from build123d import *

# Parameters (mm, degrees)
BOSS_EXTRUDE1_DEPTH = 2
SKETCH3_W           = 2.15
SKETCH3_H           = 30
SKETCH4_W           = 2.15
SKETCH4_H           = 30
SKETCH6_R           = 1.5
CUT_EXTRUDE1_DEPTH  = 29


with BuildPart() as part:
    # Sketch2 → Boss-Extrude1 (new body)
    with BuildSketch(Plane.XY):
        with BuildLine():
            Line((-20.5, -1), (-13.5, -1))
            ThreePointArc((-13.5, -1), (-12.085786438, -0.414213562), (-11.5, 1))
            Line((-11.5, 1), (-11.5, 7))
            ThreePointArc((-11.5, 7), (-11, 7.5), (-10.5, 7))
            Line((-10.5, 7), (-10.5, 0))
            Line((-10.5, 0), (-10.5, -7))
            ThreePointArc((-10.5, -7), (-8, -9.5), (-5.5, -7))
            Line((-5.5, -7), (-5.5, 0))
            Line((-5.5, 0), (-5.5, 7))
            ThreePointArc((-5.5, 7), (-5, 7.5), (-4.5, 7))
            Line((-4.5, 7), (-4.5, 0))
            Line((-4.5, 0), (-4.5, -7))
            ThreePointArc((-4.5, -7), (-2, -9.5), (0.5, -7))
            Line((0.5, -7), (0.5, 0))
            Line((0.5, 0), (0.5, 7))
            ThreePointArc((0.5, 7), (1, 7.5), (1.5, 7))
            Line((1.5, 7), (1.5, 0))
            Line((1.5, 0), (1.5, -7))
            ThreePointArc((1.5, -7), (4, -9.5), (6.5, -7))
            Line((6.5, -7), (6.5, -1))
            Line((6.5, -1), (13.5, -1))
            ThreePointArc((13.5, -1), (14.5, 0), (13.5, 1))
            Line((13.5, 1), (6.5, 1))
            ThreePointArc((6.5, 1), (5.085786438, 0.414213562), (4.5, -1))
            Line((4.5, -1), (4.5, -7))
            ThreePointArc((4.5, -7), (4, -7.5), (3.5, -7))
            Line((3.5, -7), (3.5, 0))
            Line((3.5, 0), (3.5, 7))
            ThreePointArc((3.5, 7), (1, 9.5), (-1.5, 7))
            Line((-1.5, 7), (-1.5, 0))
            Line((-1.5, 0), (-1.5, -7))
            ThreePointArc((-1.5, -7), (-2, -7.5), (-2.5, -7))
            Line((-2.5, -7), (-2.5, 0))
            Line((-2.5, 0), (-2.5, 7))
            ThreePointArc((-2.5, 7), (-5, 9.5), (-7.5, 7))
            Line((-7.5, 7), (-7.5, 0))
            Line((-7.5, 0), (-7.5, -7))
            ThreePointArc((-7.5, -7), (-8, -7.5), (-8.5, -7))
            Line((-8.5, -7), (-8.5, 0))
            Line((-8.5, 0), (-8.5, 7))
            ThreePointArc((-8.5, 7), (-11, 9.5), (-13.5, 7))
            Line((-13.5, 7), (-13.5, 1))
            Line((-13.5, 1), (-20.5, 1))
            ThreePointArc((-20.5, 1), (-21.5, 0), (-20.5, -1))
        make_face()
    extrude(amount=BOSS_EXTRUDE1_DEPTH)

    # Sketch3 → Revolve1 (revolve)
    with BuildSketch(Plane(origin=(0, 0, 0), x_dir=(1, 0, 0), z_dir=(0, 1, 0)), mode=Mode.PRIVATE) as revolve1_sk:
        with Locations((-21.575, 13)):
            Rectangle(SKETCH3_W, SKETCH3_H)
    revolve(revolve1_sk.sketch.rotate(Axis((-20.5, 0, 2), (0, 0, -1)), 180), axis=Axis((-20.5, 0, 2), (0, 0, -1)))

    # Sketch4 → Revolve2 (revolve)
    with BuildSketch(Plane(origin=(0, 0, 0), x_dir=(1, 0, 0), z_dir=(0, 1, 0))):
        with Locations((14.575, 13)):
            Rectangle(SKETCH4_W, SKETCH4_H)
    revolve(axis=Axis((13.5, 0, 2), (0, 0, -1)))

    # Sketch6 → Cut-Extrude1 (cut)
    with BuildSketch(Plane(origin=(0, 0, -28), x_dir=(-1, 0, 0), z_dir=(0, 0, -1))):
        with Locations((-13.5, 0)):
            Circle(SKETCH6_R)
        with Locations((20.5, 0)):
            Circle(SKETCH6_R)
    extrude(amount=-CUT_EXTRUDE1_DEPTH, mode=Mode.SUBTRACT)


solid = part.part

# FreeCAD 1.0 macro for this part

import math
import FreeCAD as App
import Part
import Sketcher

V = App.Vector
Q = App.Units.Quantity


def add_polygon(sketch, points):
    """Adds a closed chain of lines whose ends are joined by coincident constraints."""
    first, n = sketch.GeometryCount, len(points)
    for a, b in zip(points, points[1:] + points[:1]):
        sketch.addGeometry(Part.LineSegment(App.Vector(*a, 0), App.Vector(*b, 0)), False)
    for i in range(n):
        sketch.addConstraint(Sketcher.Constraint("Coincident", first + i, 2, first + (i + 1) % n, 1))

doc = App.newDocument("Part")
body = doc.addObject("PartDesign::Body", "Body")

sketch1 = body.newObject("Sketcher::SketchObject", "Sketch")
sketch1.AttachmentSupport = (doc.getObject("XY_Plane"), [""])
sketch1.MapMode = "FlatFace"
sketch1.addGeometry(Part.LineSegment(V(-20.5, -1, 0), V(-13.5, -1, 0)), False)
sketch1.addGeometry(Part.ArcOfCircle(Part.Circle(V(-13.5, 1, 0), V(0, 0, 1), 2), math.radians(-90), math.radians(0)), False)
sketch1.addGeometry(Part.LineSegment(V(-11.5, 1, 0), V(-11.5, 7, 0)), False)
sketch1.addGeometry(Part.ArcOfCircle(Part.Circle(V(-11, 7, 0), V(0, 0, 1), 0.5), math.radians(0), math.radians(180)), False)
sketch1.addGeometry(Part.LineSegment(V(-10.5, 7, 0), V(-10.5, -7, 0)), False)
sketch1.addGeometry(Part.ArcOfCircle(Part.Circle(V(-8, -7, 0), V(0, 0, 1), 2.5), math.radians(180), math.radians(360)), False)
sketch1.addGeometry(Part.LineSegment(V(-5.5, -7, 0), V(-5.5, 7, 0)), False)
sketch1.addGeometry(Part.ArcOfCircle(Part.Circle(V(-5, 7, 0), V(0, 0, 1), 0.5), math.radians(0), math.radians(180)), False)
sketch1.addGeometry(Part.LineSegment(V(-4.5, 7, 0), V(-4.5, -7, 0)), False)
sketch1.addGeometry(Part.ArcOfCircle(Part.Circle(V(-2, -7, 0), V(0, 0, 1), 2.5), math.radians(180), math.radians(360)), False)
sketch1.addGeometry(Part.LineSegment(V(0.5, -7, 0), V(0.5, 7, 0)), False)
sketch1.addGeometry(Part.ArcOfCircle(Part.Circle(V(1, 7, 0), V(0, 0, 1), 0.5), math.radians(0), math.radians(180)), False)
sketch1.addGeometry(Part.LineSegment(V(1.5, 7, 0), V(1.5, -7, 0)), False)
sketch1.addGeometry(Part.ArcOfCircle(Part.Circle(V(4, -7, 0), V(0, 0, 1), 2.5), math.radians(180), math.radians(360)), False)
sketch1.addGeometry(Part.LineSegment(V(6.5, -7, 0), V(6.5, -1, 0)), False)
sketch1.addGeometry(Part.LineSegment(V(6.5, -1, 0), V(13.5, -1, 0)), False)
sketch1.addGeometry(Part.ArcOfCircle(Part.Circle(V(13.5, 0, 0), V(0, 0, 1), 1), math.radians(-90), math.radians(90)), False)
sketch1.addGeometry(Part.LineSegment(V(13.5, 1, 0), V(6.5, 1, 0)), False)
sketch1.addGeometry(Part.ArcOfCircle(Part.Circle(V(6.5, -1, 0), V(0, 0, 1), 2), math.radians(90), math.radians(180)), False)
sketch1.addGeometry(Part.LineSegment(V(4.5, -1, 0), V(4.5, -7, 0)), False)
sketch1.addGeometry(Part.ArcOfCircle(Part.Circle(V(4, -7, 0), V(0, 0, 1), 0.5), math.radians(180), math.radians(360)), False)
sketch1.addGeometry(Part.LineSegment(V(3.5, -7, 0), V(3.5, 7, 0)), False)
sketch1.addGeometry(Part.ArcOfCircle(Part.Circle(V(1, 7, 0), V(0, 0, 1), 2.5), math.radians(0), math.radians(180)), False)
sketch1.addGeometry(Part.LineSegment(V(-1.5, 7, 0), V(-1.5, -7, 0)), False)
sketch1.addGeometry(Part.ArcOfCircle(Part.Circle(V(-2, -7, 0), V(0, 0, 1), 0.5), math.radians(180), math.radians(360)), False)
sketch1.addGeometry(Part.LineSegment(V(-2.5, -7, 0), V(-2.5, 7, 0)), False)
sketch1.addGeometry(Part.ArcOfCircle(Part.Circle(V(-5, 7, 0), V(0, 0, 1), 2.5), math.radians(0), math.radians(180)), False)
sketch1.addGeometry(Part.LineSegment(V(-7.5, 7, 0), V(-7.5, -7, 0)), False)
sketch1.addGeometry(Part.ArcOfCircle(Part.Circle(V(-8, -7, 0), V(0, 0, 1), 0.5), math.radians(180), math.radians(360)), False)
sketch1.addGeometry(Part.LineSegment(V(-8.5, -7, 0), V(-8.5, 7, 0)), False)
sketch1.addGeometry(Part.ArcOfCircle(Part.Circle(V(-11, 7, 0), V(0, 0, 1), 2.5), math.radians(0), math.radians(180)), False)
sketch1.addGeometry(Part.LineSegment(V(-13.5, 7, 0), V(-13.5, 1, 0)), False)
sketch1.addGeometry(Part.LineSegment(V(-13.5, 1, 0), V(-20.5, 1, 0)), False)
sketch1.addGeometry(Part.ArcOfCircle(Part.Circle(V(-20.5, 0, 0), V(0, 0, 1), 1), math.radians(90), math.radians(270)), False)
sketch1.addConstraint(Sketcher.Constraint("Tangent", 0, 2, 1, 1))
sketch1.addConstraint(Sketcher.Constraint("Tangent", 1, 2, 2, 1))
sketch1.addConstraint(Sketcher.Constraint("Tangent", 2, 2, 3, 2))
sketch1.addConstraint(Sketcher.Constraint("Tangent", 3, 1, 4, 1))
sketch1.addConstraint(Sketcher.Constraint("Tangent", 4, 2, 5, 1))
sketch1.addConstraint(Sketcher.Constraint("Tangent", 5, 2, 6, 1))
sketch1.addConstraint(Sketcher.Constraint("Tangent", 6, 2, 7, 2))
sketch1.addConstraint(Sketcher.Constraint("Tangent", 7, 1, 8, 1))
sketch1.addConstraint(Sketcher.Constraint("Tangent", 8, 2, 9, 1))
sketch1.addConstraint(Sketcher.Constraint("Tangent", 9, 2, 10, 1))
sketch1.addConstraint(Sketcher.Constraint("Tangent", 10, 2, 11, 2))
sketch1.addConstraint(Sketcher.Constraint("Tangent", 11, 1, 12, 1))
sketch1.addConstraint(Sketcher.Constraint("Tangent", 12, 2, 13, 1))
sketch1.addConstraint(Sketcher.Constraint("Tangent", 13, 2, 14, 1))
sketch1.addConstraint(Sketcher.Constraint("Coincident", 14, 2, 15, 1))
sketch1.addConstraint(Sketcher.Constraint("Tangent", 15, 2, 16, 1))
sketch1.addConstraint(Sketcher.Constraint("Tangent", 16, 2, 17, 1))
sketch1.addConstraint(Sketcher.Constraint("Tangent", 17, 2, 18, 1))
sketch1.addConstraint(Sketcher.Constraint("Tangent", 18, 2, 19, 1))
sketch1.addConstraint(Sketcher.Constraint("Tangent", 19, 2, 20, 2))
sketch1.addConstraint(Sketcher.Constraint("Tangent", 20, 1, 21, 1))
sketch1.addConstraint(Sketcher.Constraint("Tangent", 21, 2, 22, 1))
sketch1.addConstraint(Sketcher.Constraint("Tangent", 22, 2, 23, 1))
sketch1.addConstraint(Sketcher.Constraint("Tangent", 23, 2, 24, 2))
sketch1.addConstraint(Sketcher.Constraint("Tangent", 24, 1, 25, 1))
sketch1.addConstraint(Sketcher.Constraint("Tangent", 25, 2, 26, 1))
sketch1.addConstraint(Sketcher.Constraint("Tangent", 26, 2, 27, 1))
sketch1.addConstraint(Sketcher.Constraint("Tangent", 27, 2, 28, 2))
sketch1.addConstraint(Sketcher.Constraint("Tangent", 28, 1, 29, 1))
sketch1.addConstraint(Sketcher.Constraint("Tangent", 29, 2, 30, 1))
sketch1.addConstraint(Sketcher.Constraint("Tangent", 30, 2, 31, 1))
sketch1.addConstraint(Sketcher.Constraint("Coincident", 31, 2, 32, 1))
sketch1.addConstraint(Sketcher.Constraint("Tangent", 32, 2, 33, 1))
sketch1.addConstraint(Sketcher.Constraint("Tangent", 33, 2, 0, 1))
sketch1.addConstraint(Sketcher.Constraint("Horizontal", 0))
sketch1.addConstraint(Sketcher.Constraint("Vertical", 2))
sketch1.addConstraint(Sketcher.Constraint("Vertical", 4))
sketch1.addConstraint(Sketcher.Constraint("Vertical", 6))
sketch1.addConstraint(Sketcher.Constraint("Vertical", 8))
sketch1.addConstraint(Sketcher.Constraint("Vertical", 10))
sketch1.addConstraint(Sketcher.Constraint("Vertical", 12))
sketch1.addConstraint(Sketcher.Constraint("Vertical", 14))
sketch1.addConstraint(Sketcher.Constraint("Horizontal", 15))
sketch1.addConstraint(Sketcher.Constraint("Horizontal", 17))
sketch1.addConstraint(Sketcher.Constraint("Vertical", 19))
sketch1.addConstraint(Sketcher.Constraint("Vertical", 21))
sketch1.addConstraint(Sketcher.Constraint("Vertical", 23))
sketch1.addConstraint(Sketcher.Constraint("Vertical", 25))
sketch1.addConstraint(Sketcher.Constraint("Vertical", 27))
sketch1.addConstraint(Sketcher.Constraint("Vertical", 29))
sketch1.addConstraint(Sketcher.Constraint("Vertical", 31))
sketch1.addConstraint(Sketcher.Constraint("Horizontal", 32))
sketch1.addConstraint(Sketcher.Constraint("Coincident", 20, 3, 13, 3))
sketch1.addConstraint(Sketcher.Constraint("Coincident", 22, 3, 11, 3))
sketch1.addConstraint(Sketcher.Constraint("Coincident", 24, 3, 9, 3))
sketch1.addConstraint(Sketcher.Constraint("Coincident", 26, 3, 7, 3))
sketch1.addConstraint(Sketcher.Constraint("Coincident", 28, 3, 5, 3))
sketch1.addConstraint(Sketcher.Constraint("Coincident", 30, 3, 3, 3))
sketch1.addConstraint(Sketcher.Constraint("Coincident", 14, 2, 18, 3))
sketch1.addConstraint(Sketcher.Constraint("Coincident", 31, 2, 1, 3))
sketch1.addConstraint(Sketcher.Constraint("Equal", 3, 7))
sketch1.addConstraint(Sketcher.Constraint("Equal", 5, 9))
sketch1.addConstraint(Sketcher.Constraint("Equal", 7, 11))
sketch1.addConstraint(Sketcher.Constraint("Equal", 9, 13))
sketch1.addConstraint(Sketcher.Constraint("Equal", 11, 20))
sketch1.addConstraint(Sketcher.Constraint("Symmetric", 0, 2, 16, 2, -1, 1))
sketch1.addConstraint(Sketcher.Constraint("Symmetric", 7, 1, 19, 2, -1, 1))
sketch1.addConstraint(Sketcher.Constraint("PointOnObject", 16, 3, -1))
sketch1.addConstraint(Sketcher.Constraint("Horizontal", 3, 3, 7, 3))
sketch1.addConstraint(Sketcher.Constraint("Horizontal", 5, 3, 9, 3))
sketch1.addConstraint(Sketcher.Constraint("Horizontal", 7, 3, 11, 3))
sketch1.addConstraint(Sketcher.Constraint("Horizontal", 9, 3, 13, 3))
sketch1.addConstraint(Sketcher.Constraint("Equal", 0, 15))
sketch1.addConstraint(Sketcher.Constraint("Radius", 1, Q("2 mm")))
sketch1.addConstraint(Sketcher.Constraint("Radius", 3, Q("0.5 mm")))
sketch1.addConstraint(Sketcher.Constraint("DistanceY", 2, 1, 2, 2, Q("6 mm")))
pad1 = body.newObject("PartDesign::Pad", "Pad")
pad1.Profile = sketch1
pad1.Length = 2

sketch2 = body.newObject("Sketcher::SketchObject", "Sketch001")
sketch2.AttachmentSupport = (doc.getObject("XZ_Plane"), [""])
sketch2.MapMode = "FlatFace"
add_polygon(sketch2, [(-22.6, -28), (-22.6, 2), (-20.5, 2), (-20.5, -28)])
sketch2.addGeometry(Part.LineSegment(V(-20.5, 2, 0), V(-20.5, -28, 0)), True)
sketch2.addConstraint(Sketcher.Constraint("Vertical", 0))
sketch2.addConstraint(Sketcher.Constraint("Horizontal", 1))
sketch2.addConstraint(Sketcher.Constraint("Vertical", 2))
sketch2.addConstraint(Sketcher.Constraint("Horizontal", 3))
sketch2.addConstraint(Sketcher.Constraint("Vertical", 4))
sketch2.addConstraint(Sketcher.Constraint("Coincident", 4, 1, 1, 2))
sketch2.addConstraint(Sketcher.Constraint("Horizontal", 3, 2, 4, 2))
sketch2.addConstraint(Sketcher.Constraint("DistanceY", 0, 1, 0, 2, Q("30 mm")))
sketch2.addConstraint(Sketcher.Constraint("DistanceY", -1, 1, 0, 2, Q("2 mm")))
sketch2.addConstraint(Sketcher.Constraint("DistanceX", 1, 1, 1, 2, Q("2.15 mm")))
sketch2.addConstraint(Sketcher.Constraint("DistanceX", 1, 2, -1, 1, Q("20.5 mm")))
revolution = body.newObject("PartDesign::Revolution", "Revolution")
revolution.Profile = sketch2
revolution.ReferenceAxis = (sketch2, ["Axis0"])
revolution.Angle = 360

sketch3 = body.newObject("Sketcher::SketchObject", "Sketch002")
sketch3.AttachmentSupport = (doc.getObject("XZ_Plane"), [""])
sketch3.MapMode = "FlatFace"
add_polygon(sketch3, [(13.5, -28), (13.5, 2), (15.7, 2), (15.7, -28)])
sketch3.addGeometry(Part.LineSegment(V(13.5, 2, 0), V(13.5, -28, 0)), True)
sketch3.addConstraint(Sketcher.Constraint("Vertical", 0))
sketch3.addConstraint(Sketcher.Constraint("Horizontal", 1))
sketch3.addConstraint(Sketcher.Constraint("Vertical", 2))
sketch3.addConstraint(Sketcher.Constraint("Horizontal", 3))
sketch3.addConstraint(Sketcher.Constraint("Vertical", 4))
sketch3.addConstraint(Sketcher.Constraint("Coincident", 4, 1, 0, 2))
sketch3.addConstraint(Sketcher.Constraint("Horizontal", 2, 2, 4, 2))
sketch3.addConstraint(Sketcher.Constraint("DistanceY", 0, 1, 0, 2, Q("30 mm")))
sketch3.addConstraint(Sketcher.Constraint("DistanceY", -1, 1, 0, 2, Q("2 mm")))
sketch3.addConstraint(Sketcher.Constraint("DistanceX", 1, 1, 1, 2, Q("2.15 mm")))
sketch3.addConstraint(Sketcher.Constraint("DistanceX", -1, 1, 0, 2, Q("13.5 mm")))
revolution2 = body.newObject("PartDesign::Revolution", "Revolution001")
revolution2.Profile = sketch3
revolution2.ReferenceAxis = (sketch3, ["Axis0"])
revolution2.Angle = 360

sketch4 = body.newObject("Sketcher::SketchObject", "Sketch003")
sketch4.AttachmentSupport = (doc.getObject("XY_Plane"), [""])
sketch4.MapMode = "FlatFace"
sketch4.AttachmentOffset = App.Placement(V(0, 0, -28), App.Rotation())
sketch4.addGeometry(Part.Circle(V(13.5, 0, 0), V(0, 0, 1), 1.5), False)
sketch4.addGeometry(Part.Circle(V(-20.5, 0, 0), V(0, 0, 1), 1.5), False)
sketch4.addConstraint(Sketcher.Constraint("Equal", 0, 1))
sketch4.addConstraint(Sketcher.Constraint("PointOnObject", 0, 3, -1))
sketch4.addConstraint(Sketcher.Constraint("PointOnObject", 1, 3, -1))
sketch4.addConstraint(Sketcher.Constraint("Diameter", 0, Q("3 mm")))
sketch4.addConstraint(Sketcher.Constraint("DistanceX", 1, 3, 0, 3, Q("34 mm")))
sketch4.addConstraint(Sketcher.Constraint("DistanceX", -1, 1, 0, 3, Q("13.5 mm")))
pocket1 = body.newObject("PartDesign::Pocket", "Pocket")
pocket1.Profile = sketch4
pocket1.Length = 29
pocket1.Reversed = True

doc.recompute()
